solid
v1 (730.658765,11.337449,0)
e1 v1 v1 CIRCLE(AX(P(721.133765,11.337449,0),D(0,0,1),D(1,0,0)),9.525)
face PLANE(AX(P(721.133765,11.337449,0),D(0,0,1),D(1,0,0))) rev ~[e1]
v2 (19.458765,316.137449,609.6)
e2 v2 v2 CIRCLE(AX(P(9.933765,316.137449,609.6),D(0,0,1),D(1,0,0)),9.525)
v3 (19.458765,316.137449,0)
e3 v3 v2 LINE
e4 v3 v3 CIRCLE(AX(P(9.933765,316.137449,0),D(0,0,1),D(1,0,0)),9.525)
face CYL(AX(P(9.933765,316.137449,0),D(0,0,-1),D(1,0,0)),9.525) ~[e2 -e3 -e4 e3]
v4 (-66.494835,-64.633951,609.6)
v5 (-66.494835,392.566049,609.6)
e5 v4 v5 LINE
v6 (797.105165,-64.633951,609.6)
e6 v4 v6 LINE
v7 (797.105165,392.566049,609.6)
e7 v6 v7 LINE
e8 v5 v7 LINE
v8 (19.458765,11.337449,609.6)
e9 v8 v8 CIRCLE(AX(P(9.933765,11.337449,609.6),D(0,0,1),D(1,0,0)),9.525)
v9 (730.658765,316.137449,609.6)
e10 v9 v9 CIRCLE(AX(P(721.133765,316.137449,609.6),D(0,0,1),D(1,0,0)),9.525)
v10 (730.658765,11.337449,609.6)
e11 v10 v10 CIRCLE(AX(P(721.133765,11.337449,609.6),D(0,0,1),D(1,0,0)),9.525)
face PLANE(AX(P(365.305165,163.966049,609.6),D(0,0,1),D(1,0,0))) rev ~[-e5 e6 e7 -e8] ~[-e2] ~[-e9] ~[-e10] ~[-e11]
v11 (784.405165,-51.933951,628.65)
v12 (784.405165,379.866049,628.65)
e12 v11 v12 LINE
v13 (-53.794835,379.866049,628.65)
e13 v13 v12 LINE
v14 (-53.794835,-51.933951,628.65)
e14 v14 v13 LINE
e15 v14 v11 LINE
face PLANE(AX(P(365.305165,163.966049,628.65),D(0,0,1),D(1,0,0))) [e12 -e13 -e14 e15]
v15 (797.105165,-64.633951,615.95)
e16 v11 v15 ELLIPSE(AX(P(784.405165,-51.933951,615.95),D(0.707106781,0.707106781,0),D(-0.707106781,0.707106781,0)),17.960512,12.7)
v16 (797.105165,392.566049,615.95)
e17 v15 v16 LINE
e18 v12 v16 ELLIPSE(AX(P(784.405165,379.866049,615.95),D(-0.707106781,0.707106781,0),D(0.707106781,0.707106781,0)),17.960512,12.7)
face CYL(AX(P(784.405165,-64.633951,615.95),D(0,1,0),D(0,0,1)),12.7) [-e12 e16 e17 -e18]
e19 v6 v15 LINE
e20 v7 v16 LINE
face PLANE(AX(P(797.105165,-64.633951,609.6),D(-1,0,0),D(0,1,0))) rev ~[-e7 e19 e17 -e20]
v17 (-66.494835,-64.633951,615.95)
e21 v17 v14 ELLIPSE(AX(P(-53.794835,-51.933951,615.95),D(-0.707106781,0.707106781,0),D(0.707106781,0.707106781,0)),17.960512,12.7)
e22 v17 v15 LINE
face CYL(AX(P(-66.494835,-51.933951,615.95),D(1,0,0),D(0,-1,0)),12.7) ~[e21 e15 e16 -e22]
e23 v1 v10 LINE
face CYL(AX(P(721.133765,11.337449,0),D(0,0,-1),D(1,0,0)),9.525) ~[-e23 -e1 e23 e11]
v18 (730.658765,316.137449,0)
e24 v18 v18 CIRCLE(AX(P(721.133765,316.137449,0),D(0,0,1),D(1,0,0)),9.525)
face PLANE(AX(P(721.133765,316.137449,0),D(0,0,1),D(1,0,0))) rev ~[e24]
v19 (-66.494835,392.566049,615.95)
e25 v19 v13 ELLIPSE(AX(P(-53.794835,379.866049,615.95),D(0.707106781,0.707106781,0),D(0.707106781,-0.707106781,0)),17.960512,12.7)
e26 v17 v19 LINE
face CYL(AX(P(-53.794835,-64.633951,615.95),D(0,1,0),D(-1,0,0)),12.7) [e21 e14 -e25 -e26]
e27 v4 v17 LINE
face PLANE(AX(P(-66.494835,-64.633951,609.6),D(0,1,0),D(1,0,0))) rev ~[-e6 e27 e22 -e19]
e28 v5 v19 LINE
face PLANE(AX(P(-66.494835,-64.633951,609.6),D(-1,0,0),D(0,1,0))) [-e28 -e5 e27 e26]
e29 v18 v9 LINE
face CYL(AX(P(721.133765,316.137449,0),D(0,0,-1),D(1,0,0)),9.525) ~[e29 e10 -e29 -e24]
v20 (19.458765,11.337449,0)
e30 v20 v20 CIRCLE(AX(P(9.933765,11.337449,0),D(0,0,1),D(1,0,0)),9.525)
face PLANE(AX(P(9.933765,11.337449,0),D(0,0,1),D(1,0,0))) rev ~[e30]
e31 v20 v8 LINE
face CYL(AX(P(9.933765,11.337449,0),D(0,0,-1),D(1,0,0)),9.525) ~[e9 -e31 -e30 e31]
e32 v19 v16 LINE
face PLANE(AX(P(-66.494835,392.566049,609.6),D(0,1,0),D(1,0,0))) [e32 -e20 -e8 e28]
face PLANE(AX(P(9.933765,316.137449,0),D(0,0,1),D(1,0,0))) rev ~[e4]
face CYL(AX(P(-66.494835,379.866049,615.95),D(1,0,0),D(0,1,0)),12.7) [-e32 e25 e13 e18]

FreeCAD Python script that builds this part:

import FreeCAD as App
import Part
import Sketcher

V = App.Vector
Q = App.Units.Quantity


def edges_at(feature, points):
    """Names of the edges that pass closest to the given points."""
    edges = feature.Shape.Edges
    near = lambda p: min(range(len(edges)), key=lambda i: edges[i].distToShape(Part.Vertex(*p))[0])
    return sorted({f"Edge{near(p) + 1}" for p in points})


def add_polygon(sketch, points):
    """Adds a closed chain of lines whose ends are joined by coincident constraints."""
    first, n = sketch.GeometryCount, len(points)
    for a, b in zip(points, points[1:] + points[:1]):
        sketch.addGeometry(Part.LineSegment(App.Vector(*a, 0), App.Vector(*b, 0)), False)
    for i in range(n):
        sketch.addConstraint(Sketcher.Constraint("Coincident", first + i, 2, first + (i + 1) % n, 1))

doc = App.newDocument("Part")
params = doc.addObject("Spreadsheet::Sheet", "Params")
for row, (alias, value) in enumerate([
    ("sketch1_diameter", "0.75 in"),
    ("pad1_length", "24 in"),
    ("sketch2_width", "34 in"),
    ("sketch2_height", "18 in"),
    ("pad2_length", "0.75 in"),
    ("fillet_radius", "0.5 in"),
], start=1):
    params.set(f"A{row}", alias)
    params.set(f"B{row}", "=" + value)
    params.setAlias(f"B{row}", alias)

body = doc.addObject("PartDesign::Body", "Body")
body.AllowCompound = True

# Sketch on XY plane
sketch1 = doc.addObject("Sketcher::SketchObject", "Sketch")
body.addObject(sketch1)
sketch1.AttachmentSupport = (doc.XY_Plane, [""])
sketch1.MapMode = "FlatFace"
sketch1.addGeometry([
    Part.Circle(V(10, 11, 0), V(0, 0, 1), 10),
    Part.Circle(V(10, 316, 0), V(0, 0, 1), 10),
    Part.Circle(V(721, 11, 0), V(0, 0, 1), 10),
    Part.Circle(V(721, 316, 0), V(0, 0, 1), 10),
], False)
sketch1.addConstraint([
    Sketcher.Constraint("Equal", 0, 1),
    Sketcher.Constraint("Equal", 1, 2),
    Sketcher.Constraint("Equal", 2, 3),
    Sketcher.Constraint("Horizontal", 0, 3, 2, 3),
    Sketcher.Constraint("Horizontal", 1, 3, 3, 3),
    Sketcher.Constraint("Vertical", 0, 3, 1, 3),
    Sketcher.Constraint("Vertical", 2, 3, 3, 3),
    Sketcher.Constraint("Diameter", 0, Q("0.75 in")),
    Sketcher.Constraint("DistanceY", 0, 3, 1, 3, Q("12 in")),
    Sketcher.Constraint("DistanceX", 0, 3, 2, 3, Q("28 in")),
    Sketcher.Constraint("DistanceY", -1, 1, 0, 3, Q("11.337449 mm")),
    Sketcher.Constraint("DistanceX", -1, 1, 0, 3, Q("9.933765 mm")),
])
sketch1.setExpression("Constraints[7]", "Params.sketch1_diameter")
pad1 = doc.addObject("PartDesign::Pad", "Pad")
body.addObject(pad1)
pad1.Profile = sketch1
pad1.setExpression("Length", "Params.pad1_length")

# Sketch on XY plane
sketch2 = doc.addObject("Sketcher::SketchObject", "Sketch001")
body.addObject(sketch2)
sketch2.AttachmentSupport = (doc.XY_Plane, [""])
sketch2.MapMode = "FlatFace"
sketch2.AttachmentOffset = App.Placement(V(0, 0, 24 * 25.4), App.Rotation())
add_polygon(sketch2, [(-66, 393), (-66, -65), (797, -65), (797, 393)])  # lines 0-3
sketch2.addConstraint([
    Sketcher.Constraint("Vertical", 0),
    Sketcher.Constraint("Horizontal", 1),
    Sketcher.Constraint("Vertical", 2),
    Sketcher.Constraint("Horizontal", 3),
    Sketcher.Constraint("DistanceX", 1, 1, 1, 2, Q("34 in")),
    Sketcher.Constraint("DistanceY", 0, 2, 0, 1, Q("18 in")),
    Sketcher.Constraint("DistanceY", 0, 2, -1, 1, Q("64.633951 mm")),
    Sketcher.Constraint("DistanceX", 0, 2, -1, 1, Q("66.494835 mm")),
])
sketch2.setExpression("Constraints[8]", "Params.sketch2_width")
sketch2.setExpression("Constraints[9]", "Params.sketch2_height")
pad2 = doc.addObject("PartDesign::Pad", "Pad001")
body.addObject(pad2)
pad2.Profile = sketch2
pad2.setExpression("Length", "Params.pad2_length")
doc.recompute()

fillet = doc.addObject("PartDesign::Fillet", "Fillet")
body.addObject(fillet)
fillet.Base = (pad2, edges_at(pad2, [
    (797.105, 163.966, 628.65),
    (365.305, 392.566, 628.65),
    (-66.495, 163.966, 628.65),
    (365.305, -64.634, 628.65),
]))
fillet.setExpression("Radius", "Params.fillet_radius")

doc.recompute()
